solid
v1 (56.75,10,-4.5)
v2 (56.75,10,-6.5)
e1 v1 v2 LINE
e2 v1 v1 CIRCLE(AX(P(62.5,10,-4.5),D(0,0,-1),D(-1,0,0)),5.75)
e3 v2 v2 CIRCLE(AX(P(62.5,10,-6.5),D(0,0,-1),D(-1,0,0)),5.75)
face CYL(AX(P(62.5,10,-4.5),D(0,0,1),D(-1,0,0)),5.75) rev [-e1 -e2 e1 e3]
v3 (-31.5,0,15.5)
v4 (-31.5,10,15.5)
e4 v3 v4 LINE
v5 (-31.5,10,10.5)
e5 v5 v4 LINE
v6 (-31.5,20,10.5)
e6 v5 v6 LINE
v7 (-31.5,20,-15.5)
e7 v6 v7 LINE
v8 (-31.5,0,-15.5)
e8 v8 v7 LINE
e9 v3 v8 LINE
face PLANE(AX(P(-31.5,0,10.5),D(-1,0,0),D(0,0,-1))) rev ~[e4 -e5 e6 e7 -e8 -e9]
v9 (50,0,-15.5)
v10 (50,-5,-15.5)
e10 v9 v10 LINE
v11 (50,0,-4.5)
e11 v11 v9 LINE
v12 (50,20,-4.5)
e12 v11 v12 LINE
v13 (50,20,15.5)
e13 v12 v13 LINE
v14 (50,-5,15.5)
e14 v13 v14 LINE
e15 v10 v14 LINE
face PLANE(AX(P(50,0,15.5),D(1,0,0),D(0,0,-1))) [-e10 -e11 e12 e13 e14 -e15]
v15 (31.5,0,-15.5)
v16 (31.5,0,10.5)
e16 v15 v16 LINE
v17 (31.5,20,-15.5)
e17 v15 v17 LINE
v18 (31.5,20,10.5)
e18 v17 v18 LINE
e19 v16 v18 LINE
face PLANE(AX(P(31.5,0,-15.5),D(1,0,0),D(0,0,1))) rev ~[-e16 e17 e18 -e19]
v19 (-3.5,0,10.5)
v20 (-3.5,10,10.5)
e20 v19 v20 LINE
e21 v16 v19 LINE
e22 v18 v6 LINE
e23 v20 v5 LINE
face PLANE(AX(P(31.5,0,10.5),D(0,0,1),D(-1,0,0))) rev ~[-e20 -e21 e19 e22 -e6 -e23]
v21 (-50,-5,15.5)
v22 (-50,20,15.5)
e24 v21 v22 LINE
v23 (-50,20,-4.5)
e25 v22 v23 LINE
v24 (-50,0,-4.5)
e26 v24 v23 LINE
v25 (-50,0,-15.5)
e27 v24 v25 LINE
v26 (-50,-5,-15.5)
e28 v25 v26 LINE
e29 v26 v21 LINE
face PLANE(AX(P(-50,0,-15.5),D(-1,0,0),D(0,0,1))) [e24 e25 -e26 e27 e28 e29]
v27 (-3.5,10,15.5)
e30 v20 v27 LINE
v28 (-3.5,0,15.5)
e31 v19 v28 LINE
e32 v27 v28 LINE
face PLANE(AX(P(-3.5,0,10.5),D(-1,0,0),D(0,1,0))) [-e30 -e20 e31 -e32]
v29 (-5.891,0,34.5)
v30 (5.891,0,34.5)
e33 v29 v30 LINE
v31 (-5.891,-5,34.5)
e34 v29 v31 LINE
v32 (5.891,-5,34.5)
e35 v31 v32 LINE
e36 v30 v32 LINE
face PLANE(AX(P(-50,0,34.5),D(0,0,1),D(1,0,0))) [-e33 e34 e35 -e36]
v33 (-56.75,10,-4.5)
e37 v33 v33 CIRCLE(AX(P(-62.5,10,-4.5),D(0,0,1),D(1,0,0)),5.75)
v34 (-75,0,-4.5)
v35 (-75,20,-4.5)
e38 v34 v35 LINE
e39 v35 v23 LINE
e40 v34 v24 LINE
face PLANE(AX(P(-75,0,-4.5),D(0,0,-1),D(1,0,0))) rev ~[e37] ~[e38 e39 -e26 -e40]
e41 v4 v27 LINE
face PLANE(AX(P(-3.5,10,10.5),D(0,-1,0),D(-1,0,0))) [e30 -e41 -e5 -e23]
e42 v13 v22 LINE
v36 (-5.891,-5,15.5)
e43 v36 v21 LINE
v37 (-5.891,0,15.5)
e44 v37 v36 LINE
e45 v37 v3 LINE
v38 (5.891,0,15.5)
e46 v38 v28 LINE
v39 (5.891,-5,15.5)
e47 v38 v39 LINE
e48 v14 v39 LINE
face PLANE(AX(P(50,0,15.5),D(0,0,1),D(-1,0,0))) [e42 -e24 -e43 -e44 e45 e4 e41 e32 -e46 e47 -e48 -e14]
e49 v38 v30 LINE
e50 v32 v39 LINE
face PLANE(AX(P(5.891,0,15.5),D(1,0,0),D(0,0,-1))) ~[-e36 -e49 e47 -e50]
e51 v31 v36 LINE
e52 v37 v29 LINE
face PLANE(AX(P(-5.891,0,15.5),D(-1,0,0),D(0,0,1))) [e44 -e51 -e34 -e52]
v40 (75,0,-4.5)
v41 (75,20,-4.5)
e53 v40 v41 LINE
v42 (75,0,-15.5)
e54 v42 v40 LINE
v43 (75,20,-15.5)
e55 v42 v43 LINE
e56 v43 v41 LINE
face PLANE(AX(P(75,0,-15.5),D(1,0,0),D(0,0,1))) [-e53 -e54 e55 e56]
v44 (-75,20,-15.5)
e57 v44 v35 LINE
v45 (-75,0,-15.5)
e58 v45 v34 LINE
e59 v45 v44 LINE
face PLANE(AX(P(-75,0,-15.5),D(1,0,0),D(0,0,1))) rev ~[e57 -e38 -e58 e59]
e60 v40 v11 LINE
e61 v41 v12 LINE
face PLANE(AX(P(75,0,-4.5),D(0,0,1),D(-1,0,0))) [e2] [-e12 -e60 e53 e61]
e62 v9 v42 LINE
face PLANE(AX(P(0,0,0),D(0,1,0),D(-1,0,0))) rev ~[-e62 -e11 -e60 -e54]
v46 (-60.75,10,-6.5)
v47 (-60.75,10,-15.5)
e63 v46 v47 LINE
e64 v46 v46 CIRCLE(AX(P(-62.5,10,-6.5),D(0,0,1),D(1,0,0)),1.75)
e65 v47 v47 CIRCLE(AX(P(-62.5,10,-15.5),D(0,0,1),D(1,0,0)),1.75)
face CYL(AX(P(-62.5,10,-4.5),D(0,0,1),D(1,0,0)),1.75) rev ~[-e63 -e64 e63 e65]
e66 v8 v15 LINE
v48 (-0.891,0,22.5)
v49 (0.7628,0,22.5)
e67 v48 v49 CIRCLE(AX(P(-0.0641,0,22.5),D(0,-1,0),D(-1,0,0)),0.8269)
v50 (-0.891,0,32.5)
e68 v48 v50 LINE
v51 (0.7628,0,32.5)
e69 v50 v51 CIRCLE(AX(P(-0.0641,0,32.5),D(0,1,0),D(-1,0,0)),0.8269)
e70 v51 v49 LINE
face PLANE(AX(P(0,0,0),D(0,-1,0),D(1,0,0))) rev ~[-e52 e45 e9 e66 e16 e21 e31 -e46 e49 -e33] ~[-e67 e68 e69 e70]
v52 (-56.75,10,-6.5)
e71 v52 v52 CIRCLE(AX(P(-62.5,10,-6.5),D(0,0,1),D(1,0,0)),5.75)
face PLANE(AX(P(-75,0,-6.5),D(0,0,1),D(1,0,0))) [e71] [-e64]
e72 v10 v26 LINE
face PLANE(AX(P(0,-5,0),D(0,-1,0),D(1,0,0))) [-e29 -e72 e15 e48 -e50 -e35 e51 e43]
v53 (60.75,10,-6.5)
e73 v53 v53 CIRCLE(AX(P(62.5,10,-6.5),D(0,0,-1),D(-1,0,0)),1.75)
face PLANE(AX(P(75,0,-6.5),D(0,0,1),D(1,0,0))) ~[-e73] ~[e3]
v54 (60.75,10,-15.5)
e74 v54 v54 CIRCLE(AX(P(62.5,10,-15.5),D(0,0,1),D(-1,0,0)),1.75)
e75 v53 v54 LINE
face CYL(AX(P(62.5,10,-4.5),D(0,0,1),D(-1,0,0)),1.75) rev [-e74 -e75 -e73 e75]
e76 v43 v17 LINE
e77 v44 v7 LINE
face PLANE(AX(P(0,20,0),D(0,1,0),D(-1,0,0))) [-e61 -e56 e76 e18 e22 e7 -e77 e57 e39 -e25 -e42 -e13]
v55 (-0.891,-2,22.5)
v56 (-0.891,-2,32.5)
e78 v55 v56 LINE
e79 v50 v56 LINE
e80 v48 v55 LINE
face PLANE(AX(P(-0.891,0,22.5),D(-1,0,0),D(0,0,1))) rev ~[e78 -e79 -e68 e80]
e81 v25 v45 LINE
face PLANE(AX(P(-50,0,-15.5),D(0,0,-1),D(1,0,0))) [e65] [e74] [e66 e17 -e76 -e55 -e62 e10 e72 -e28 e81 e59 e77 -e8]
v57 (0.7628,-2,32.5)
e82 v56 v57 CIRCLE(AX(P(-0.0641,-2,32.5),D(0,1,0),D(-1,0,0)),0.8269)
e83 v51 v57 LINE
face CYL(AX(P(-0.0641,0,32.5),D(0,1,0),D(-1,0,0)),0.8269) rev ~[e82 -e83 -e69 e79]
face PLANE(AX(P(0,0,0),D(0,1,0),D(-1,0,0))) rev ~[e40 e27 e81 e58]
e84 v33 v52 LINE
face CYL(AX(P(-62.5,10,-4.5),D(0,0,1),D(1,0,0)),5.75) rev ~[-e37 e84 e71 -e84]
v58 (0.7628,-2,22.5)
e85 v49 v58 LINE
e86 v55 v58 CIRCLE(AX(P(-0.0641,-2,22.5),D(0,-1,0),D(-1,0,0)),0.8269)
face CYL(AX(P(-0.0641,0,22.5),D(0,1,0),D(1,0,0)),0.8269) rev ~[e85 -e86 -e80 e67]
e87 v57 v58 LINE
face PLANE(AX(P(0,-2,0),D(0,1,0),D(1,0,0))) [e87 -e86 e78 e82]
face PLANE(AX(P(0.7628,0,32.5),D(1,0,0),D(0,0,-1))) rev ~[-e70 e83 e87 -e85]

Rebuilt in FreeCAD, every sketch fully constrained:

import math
import FreeCAD as App
import Part
import Sketcher
from FreeCAD import Vector
Q = App.Units.Quantity

doc = App.newDocument("Part")
params = doc.addObject("Spreadsheet::Sheet", "Params")
for row, (alias, value) in enumerate([
    ("sketch1_width", "25 mm"),
    ("sketch1_width2", "100 mm"),
    ("sketch1_width3", "63 mm"),
    ("sketch1_height", "11 mm"),
    ("sketch1_height2", "26 mm"),
    ("pad1_length", "20 mm"),
    ("sketch2_diameter", "3.5 mm"),
    ("sketch3_diameter", "11.5 mm"),
    ("sketch3_diameter2", "3.5 mm"),
    ("pocket2_length", "2 mm"),
    ("sketch4_width", "100 mm"),
    ("sketch4_height", "50 mm"),
    ("pad2_length", "5 mm"),
    ("sketch5_width", "28 mm"),
    ("sketch5_height", "10 mm"),
    ("pocket3_length", "57 mm"),
    ("sketch6_height", "10 mm"),
    ("pocket4_length", "2 mm"),
    ("sketch7_height", "19 mm"),
    ("pocket5_length", "24.25 mm"),
], start=1):
    params.set(f"A{row}", alias)
    params.set(f"B{row}", "=" + value)
    params.setAlias(f"B{row}", alias)

body = doc.addObject("PartDesign::Body", "Body")

sketch1 = body.newObject("Sketcher::SketchObject", "Sketch")
sketch1.AttachmentSupport = (doc.getObject("XZ_Plane"), [""])
sketch1.MapMode = "FlatFace"
sketch1.addGeometry([
    Part.LineSegment(Vector(-32, -16, 0), Vector(-75, -16, 0)),
    Part.LineSegment(Vector(-75, -16, 0), Vector(-75, -4, 0)),
    Part.LineSegment(Vector(-75, -4, 0), Vector(-50, -4, 0)),
    Part.LineSegment(Vector(-50, -4, 0), Vector(-50, 16, 0)),
    Part.LineSegment(Vector(-50, 16, 0), Vector(50, 16, 0)),
    Part.LineSegment(Vector(50, 16, 0), Vector(50, -4, 0)),
    Part.LineSegment(Vector(50, -4, 0), Vector(75, -4, 0)),
    Part.LineSegment(Vector(75, -4, 0), Vector(75, -16, 0)),
    Part.LineSegment(Vector(75, -16, 0), Vector(32, -16, 0)),
    Part.LineSegment(Vector(32, -16, 0), Vector(32, 10, 0)),
    Part.LineSegment(Vector(32, 10, 0), Vector(-32, 10, 0)),
    Part.LineSegment(Vector(-32, 10, 0), Vector(-32, -16, 0)),
], False)
sketch1.addConstraint([
    Sketcher.Constraint("Coincident", 0, 2, 1, 1),
    Sketcher.Constraint("Coincident", 1, 2, 2, 1),
    Sketcher.Constraint("Coincident", 2, 2, 3, 1),
    Sketcher.Constraint("Coincident", 3, 2, 4, 1),
    Sketcher.Constraint("Coincident", 4, 2, 5, 1),
    Sketcher.Constraint("Coincident", 5, 2, 6, 1),
    Sketcher.Constraint("Coincident", 6, 2, 7, 1),
    Sketcher.Constraint("Coincident", 7, 2, 8, 1),
    Sketcher.Constraint("Coincident", 8, 2, 9, 1),
    Sketcher.Constraint("Coincident", 9, 2, 10, 1),
    Sketcher.Constraint("Coincident", 10, 2, 11, 1),
    Sketcher.Constraint("Coincident", 11, 2, 0, 1),
    Sketcher.Constraint("Horizontal", 0),
    Sketcher.Constraint("Vertical", 1),
    Sketcher.Constraint("Horizontal", 2),
    Sketcher.Constraint("Vertical", 3),
    Sketcher.Constraint("Horizontal", 4),
    Sketcher.Constraint("Vertical", 5),
    Sketcher.Constraint("Horizontal", 6),
    Sketcher.Constraint("Vertical", 7),
    Sketcher.Constraint("Horizontal", 8),
    Sketcher.Constraint("Vertical", 9),
    Sketcher.Constraint("Horizontal", 10),
    Sketcher.Constraint("Vertical", 11),
    Sketcher.Constraint("Symmetric", 2, 2, 5, 2, -2),
    Sketcher.Constraint("Symmetric", 0, 2, 7, 2, -2),
    Sketcher.Constraint("Equal", 0, 8),
    Sketcher.Constraint("DistanceX", 2, 1, 2, 2, Q("25 mm")),
    Sketcher.Constraint("DistanceX", 4, 1, 4, 2, Q("100 mm")),
    Sketcher.Constraint("DistanceX", 10, 2, 10, 1, Q("63 mm")),
    Sketcher.Constraint("DistanceY", 1, 1, 1, 2, Q("11 mm")),
    Sketcher.Constraint("DistanceY", 9, 1, 9, 2, Q("26 mm")),
    Sketcher.Constraint("DistanceY", 0, 2, 3, 2, Q("31 mm")),
    Sketcher.Constraint("DistanceY", 0, 2, -1, 1, Q("15.5 mm")),
])
sketch1.setExpression("Constraints[27]", "Params.sketch1_width")
sketch1.setExpression("Constraints[28]", "Params.sketch1_width2")
sketch1.setExpression("Constraints[29]", "Params.sketch1_width3")
sketch1.setExpression("Constraints[30]", "Params.sketch1_height")
sketch1.setExpression("Constraints[31]", "Params.sketch1_height2")
pad1 = body.newObject("PartDesign::Pad", "Pad")
pad1.Profile = sketch1
pad1.setExpression("Length", "Params.pad1_length")
pad1.Reversed = True

sketch2 = body.newObject("Sketcher::SketchObject", "Sketch001")
sketch2.AttachmentSupport = (doc.getObject("XY_Plane"), [""])
sketch2.MapMode = "FlatFace"
sketch2.AttachmentOffset = App.Placement(Vector(0, 0, -4.5), App.Rotation())
sketch2.addGeometry(Part.Circle(Vector(-62.5, 10, 0), Vector(0, 0, 1), 1.8), False)
sketch2.addConstraint([
    Sketcher.Constraint("Diameter", 0, Q("3.5 mm")),
    Sketcher.Constraint("DistanceY", -1, 1, 0, 3, Q("10 mm")),
    Sketcher.Constraint("DistanceX", 0, 3, -1, 1, Q("62.5 mm")),
])
sketch2.setExpression("Constraints[0]", "Params.sketch2_diameter")
pocket1 = body.newObject("PartDesign::Pocket", "Pocket")
pocket1.Profile = sketch2
pocket1.Type = "ThroughAll"

sketch3 = body.newObject("Sketcher::SketchObject", "Sketch002")
sketch3.AttachmentSupport = (doc.getObject("XY_Plane"), [""])
sketch3.MapMode = "FlatFace"
sketch3.AttachmentOffset = App.Placement(Vector(0, 0, -4.5), App.Rotation())
sketch3.addGeometry([
    Part.Circle(Vector(-62.5, 10, 0), Vector(0, 0, 1), 5.8),
    Part.Circle(Vector(-62.5, 10, 0), Vector(0, 0, 1), 1.8),
], False)
sketch3.addConstraint([
    Sketcher.Constraint("Coincident", 1, 3, 0, 3),
    Sketcher.Constraint("Diameter", 0, Q("11.5 mm")),
    Sketcher.Constraint("Diameter", 1, Q("3.5 mm")),
    Sketcher.Constraint("DistanceY", -1, 1, 0, 3, Q("10 mm")),
    Sketcher.Constraint("DistanceX", 0, 3, -1, 1, Q("62.5 mm")),
])
sketch3.setExpression("Constraints[1]", "Params.sketch3_diameter")
sketch3.setExpression("Constraints[2]", "Params.sketch3_diameter2")
pocket2 = body.newObject("PartDesign::Pocket", "Pocket001")
pocket2.Profile = sketch3
pocket2.setExpression("Length", "Params.pocket2_length")
doc.recompute()

mirrored = body.newObject("PartDesign::Mirrored", "Mirrored")
mirrored.Originals = [pocket2, pocket1]
mirrored.MirrorPlane = (doc.getObject("YZ_Plane"), [""])
body.Tip = mirrored

sketch4 = body.newObject("Sketcher::SketchObject", "Sketch003")
sketch4.AttachmentSupport = (doc.getObject("XZ_Plane"), [""])
sketch4.MapMode = "FlatFace"
sketch4.addGeometry([
    Part.LineSegment(Vector(-50, -16, 0), Vector(50, -16, 0)),
    Part.LineSegment(Vector(50, -16, 0), Vector(50, 34, 0)),
    Part.LineSegment(Vector(50, 34, 0), Vector(-50, 34, 0)),
    Part.LineSegment(Vector(-50, 34, 0), Vector(-50, -16, 0)),
], False)
sketch4.addConstraint([
    Sketcher.Constraint("Coincident", 0, 2, 1, 1),
    Sketcher.Constraint("Coincident", 1, 2, 2, 1),
    Sketcher.Constraint("Coincident", 2, 2, 3, 1),
    Sketcher.Constraint("Coincident", 3, 2, 0, 1),
    Sketcher.Constraint("Horizontal", 0),
    Sketcher.Constraint("Vertical", 1),
    Sketcher.Constraint("Horizontal", 2),
    Sketcher.Constraint("Vertical", 3),
    Sketcher.Constraint("DistanceX", 0, 1, 0, 2, Q("100 mm")),
    Sketcher.Constraint("DistanceY", 1, 1, 1, 2, Q("50 mm")),
    Sketcher.Constraint("DistanceX", -1, 1, 0, 2, Q("50 mm")),
    Sketcher.Constraint("DistanceY", 0, 2, -1, 1, Q("15.5 mm")),
])
sketch4.setExpression("Constraints[8]", "Params.sketch4_width")
sketch4.setExpression("Constraints[9]", "Params.sketch4_height")
pad2 = body.newObject("PartDesign::Pad", "Pad001")
pad2.Profile = sketch4
pad2.setExpression("Length", "Params.pad2_length")

sketch5 = body.newObject("Sketcher::SketchObject", "Sketch004")
sketch5.AttachmentSupport = (doc.getObject("XY_Plane"), [""])
sketch5.MapMode = "FlatFace"
sketch5.AttachmentOffset = App.Placement(Vector(0, 0, 10.5), App.Rotation())
sketch5.addGeometry([
    Part.LineSegment(Vector(-4, 0, 0), Vector(-32, 0, 0)),
    Part.LineSegment(Vector(-32, 0, 0), Vector(-32, 10, 0)),
    Part.LineSegment(Vector(-32, 10, 0), Vector(-4, 10, 0)),
    Part.LineSegment(Vector(-4, 10, 0), Vector(-4, 0, 0)),
], False)
sketch5.addConstraint([
    Sketcher.Constraint("Coincident", 0, 2, 1, 1),
    Sketcher.Constraint("Coincident", 1, 2, 2, 1),
    Sketcher.Constraint("Coincident", 2, 2, 3, 1),
    Sketcher.Constraint("Coincident", 3, 2, 0, 1),
    Sketcher.Constraint("Horizontal", 0),
    Sketcher.Constraint("Vertical", 1),
    Sketcher.Constraint("Horizontal", 2),
    Sketcher.Constraint("Vertical", 3),
    Sketcher.Constraint("PointOnObject", 0, 2, -1),
    Sketcher.Constraint("DistanceX", 0, 2, 0, 1, Q("28 mm")),
    Sketcher.Constraint("DistanceY", 1, 1, 1, 2, Q("10 mm")),
    Sketcher.Constraint("DistanceX", 0, 2, -1, 1, Q("31.5 mm")),
])
sketch5.setExpression("Constraints[9]", "Params.sketch5_width")
sketch5.setExpression("Constraints[10]", "Params.sketch5_height")
pocket3 = body.newObject("PartDesign::Pocket", "Pocket002")
pocket3.Profile = sketch5
pocket3.setExpression("Length", "Params.pocket3_length")
pocket3.Reversed = True

sketch6 = body.newObject("Sketcher::SketchObject", "Sketch005")
sketch6.AttachmentSupport = (doc.getObject("XZ_Plane"), [""])
sketch6.MapMode = "FlatFace"
sketch6.addGeometry([
    Part.ArcOfCircle(Part.Circle(Vector(-0.1, 22.5, 0), Vector(0, 0, 1), 0.8), math.radians(180), math.radians(360)),
    Part.LineSegment(Vector(-0.9, 22.5, 0), Vector(-0.9, 32.5, 0)),
    Part.ArcOfCircle(Part.Circle(Vector(-0.1, 32.5, 0), Vector(0, 0, 1), 0.8), math.radians(0), math.radians(180)),
    Part.LineSegment(Vector(0.8, 32.5, 0), Vector(0.8, 22.5, 0)),
], False)
sketch6.addConstraint([
    Sketcher.Constraint("Tangent", 0, 1, 1, 1),
    Sketcher.Constraint("Tangent", 1, 2, 2, 2),
    Sketcher.Constraint("Tangent", 2, 1, 3, 1),
    Sketcher.Constraint("Tangent", 3, 2, 0, 2),
    Sketcher.Constraint("Vertical", 1),
    Sketcher.Constraint("Vertical", 3),
    Sketcher.Constraint("DistanceY", 1, 1, 1, 2, Q("10 mm")),
    Sketcher.Constraint("Radius", 0, Q("0.827 mm")),
    Sketcher.Constraint("DistanceY", -1, 1, 0, 3, Q("22.5 mm")),
    Sketcher.Constraint("DistanceX", 0, 3, -1, 1, Q("0.064 mm")),
])
sketch6.setExpression("Constraints[6]", "Params.sketch6_height")
pocket4 = body.newObject("PartDesign::Pocket", "Pocket003")
pocket4.Profile = sketch6
pocket4.setExpression("Length", "Params.pocket4_length")
pocket4.Reversed = True

sketch7 = body.newObject("Sketcher::SketchObject", "Sketch006")
sketch7.AttachmentSupport = (doc.getObject("XZ_Plane"), [""])
sketch7.MapMode = "FlatFace"
sketch7.addGeometry([
    Part.LineSegment(Vector(-6, 34, 0), Vector(-6, 16, 0)),
    Part.LineSegment(Vector(-6, 16, 0), Vector(-50, 16, 0)),
    Part.LineSegment(Vector(-50, 16, 0), Vector(-50, 34, 0)),
    Part.LineSegment(Vector(-50, 34, 0), Vector(-6, 34, 0)),
], False)
sketch7.addConstraint([
    Sketcher.Constraint("Coincident", 0, 2, 1, 1),
    Sketcher.Constraint("Coincident", 1, 2, 2, 1),
    Sketcher.Constraint("Coincident", 2, 2, 3, 1),
    Sketcher.Constraint("Coincident", 3, 2, 0, 1),
    Sketcher.Constraint("Vertical", 0),
    Sketcher.Constraint("Horizontal", 1),
    Sketcher.Constraint("Vertical", 2),
    Sketcher.Constraint("Horizontal", 3),
    Sketcher.Constraint("DistanceY", 0, 2, 0, 1, Q("19 mm")),
    Sketcher.Constraint("DistanceX", 1, 2, -1, 1, Q("50 mm")),
    Sketcher.Constraint("DistanceY", -1, 1, 0, 2, Q("15.5 mm")),
    Sketcher.Constraint("DistanceX", 1, 2, 1, 1, Q("44.109 mm")),
])
sketch7.setExpression("Constraints[8]", "Params.sketch7_height")
pocket5 = body.newObject("PartDesign::Pocket", "Pocket004")
pocket5.Profile = sketch7
pocket5.setExpression("Length", "Params.pocket5_length")
pocket5.Reversed = True
doc.recompute()

mirrored2 = body.newObject("PartDesign::Mirrored", "Mirrored001")
mirrored2.Originals = [pocket5]
mirrored2.MirrorPlane = (doc.getObject("YZ_Plane"), [""])
body.Tip = mirrored2

doc.recompute()
